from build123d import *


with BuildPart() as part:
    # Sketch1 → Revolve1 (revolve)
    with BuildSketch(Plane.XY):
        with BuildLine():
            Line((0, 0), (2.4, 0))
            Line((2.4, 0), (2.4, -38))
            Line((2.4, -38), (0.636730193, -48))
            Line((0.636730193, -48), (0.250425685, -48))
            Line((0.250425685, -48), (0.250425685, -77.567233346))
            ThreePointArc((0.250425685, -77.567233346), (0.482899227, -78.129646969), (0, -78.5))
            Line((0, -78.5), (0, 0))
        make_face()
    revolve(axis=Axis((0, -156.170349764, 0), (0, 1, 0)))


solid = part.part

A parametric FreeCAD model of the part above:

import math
import FreeCAD as App
import Part
import Sketcher

V = App.Vector
Q = App.Units.Quantity

doc = App.newDocument("Part")
body = doc.addObject("PartDesign::Body", "Body")

sketch1 = doc.addObject("Sketcher::SketchObject", "Sketch")
body.addObject(sketch1)
sketch1.AttachmentSupport = (doc.XY_Plane, [""])
sketch1.MapMode = "FlatFace"
sketch1.addGeometry(Part.LineSegment(V(2.4, 0, 0), V(0, 0, 0)), False)
sketch1.addGeometry(Part.LineSegment(V(0, 0, 0), V(0, -78.5, 0)), False)
sketch1.addGeometry(Part.ArcOfCircle(Part.Circle(V(0, -78, 0), V(0, 0, 1), 0.5), math.radians(-90), math.radians(60)), False)
sketch1.addGeometry(Part.LineSegment(V(0.25, -77.57, 0), V(0.25, -48, 0)), False)
sketch1.addGeometry(Part.LineSegment(V(0.25, -48, 0), V(0.64, -48, 0)), False)
sketch1.addGeometry(Part.LineSegment(V(0.64, -48, 0), V(2.4, -38, 0)), False)
sketch1.addGeometry(Part.LineSegment(V(2.4, -38, 0), V(2.4, 0, 0)), False)
sketch1.addConstraint(Sketcher.Constraint("Coincident", 0, 2, 1, 1))
sketch1.addConstraint(Sketcher.Constraint("Coincident", 1, 2, 2, 1))
sketch1.addConstraint(Sketcher.Constraint("Coincident", 2, 2, 3, 1))
sketch1.addConstraint(Sketcher.Constraint("Coincident", 3, 2, 4, 1))
sketch1.addConstraint(Sketcher.Constraint("Coincident", 4, 2, 5, 1))
sketch1.addConstraint(Sketcher.Constraint("Coincident", 5, 2, 6, 1))
sketch1.addConstraint(Sketcher.Constraint("Coincident", 6, 2, 0, 1))
sketch1.addConstraint(Sketcher.Constraint("Horizontal", 0))
sketch1.addConstraint(Sketcher.Constraint("Vertical", 1))
sketch1.addConstraint(Sketcher.Constraint("Vertical", 3))
sketch1.addConstraint(Sketcher.Constraint("Horizontal", 4))
sketch1.addConstraint(Sketcher.Constraint("Vertical", 6))
sketch1.addConstraint(Sketcher.Constraint("Coincident", 0, 2, -1, 1))
sketch1.addConstraint(Sketcher.Constraint("PointOnObject", 2, 3, -2))
sketch1.addConstraint(Sketcher.Constraint("Radius", 2, 0.5))
sketch1.addConstraint(Sketcher.Constraint("DistanceY", 6, 1, 6, 2, 38.0))
sketch1.addConstraint(Sketcher.Constraint("Angle", 5, Q("80 deg")))
sketch1.addConstraint(Sketcher.Constraint("DistanceX", 0, 2, 0, 1, 2.4))
sketch1.addConstraint(Sketcher.Constraint("DistanceY", 1, 2, 1, 1, 78.5))
sketch1.addConstraint(Sketcher.Constraint("DistanceY", 3, 2, -1, 1, 48.0))
sketch1.addConstraint(Sketcher.Constraint("DistanceX", 4, 1, 4, 2, 0.386305))
revolution = doc.addObject("PartDesign::Revolution", "Revolution")
body.addObject(revolution)
revolution.Profile = sketch1
revolution.ReferenceAxis = (sketch1, ["V_Axis"])
revolution.Angle = 360

doc.recompute()
